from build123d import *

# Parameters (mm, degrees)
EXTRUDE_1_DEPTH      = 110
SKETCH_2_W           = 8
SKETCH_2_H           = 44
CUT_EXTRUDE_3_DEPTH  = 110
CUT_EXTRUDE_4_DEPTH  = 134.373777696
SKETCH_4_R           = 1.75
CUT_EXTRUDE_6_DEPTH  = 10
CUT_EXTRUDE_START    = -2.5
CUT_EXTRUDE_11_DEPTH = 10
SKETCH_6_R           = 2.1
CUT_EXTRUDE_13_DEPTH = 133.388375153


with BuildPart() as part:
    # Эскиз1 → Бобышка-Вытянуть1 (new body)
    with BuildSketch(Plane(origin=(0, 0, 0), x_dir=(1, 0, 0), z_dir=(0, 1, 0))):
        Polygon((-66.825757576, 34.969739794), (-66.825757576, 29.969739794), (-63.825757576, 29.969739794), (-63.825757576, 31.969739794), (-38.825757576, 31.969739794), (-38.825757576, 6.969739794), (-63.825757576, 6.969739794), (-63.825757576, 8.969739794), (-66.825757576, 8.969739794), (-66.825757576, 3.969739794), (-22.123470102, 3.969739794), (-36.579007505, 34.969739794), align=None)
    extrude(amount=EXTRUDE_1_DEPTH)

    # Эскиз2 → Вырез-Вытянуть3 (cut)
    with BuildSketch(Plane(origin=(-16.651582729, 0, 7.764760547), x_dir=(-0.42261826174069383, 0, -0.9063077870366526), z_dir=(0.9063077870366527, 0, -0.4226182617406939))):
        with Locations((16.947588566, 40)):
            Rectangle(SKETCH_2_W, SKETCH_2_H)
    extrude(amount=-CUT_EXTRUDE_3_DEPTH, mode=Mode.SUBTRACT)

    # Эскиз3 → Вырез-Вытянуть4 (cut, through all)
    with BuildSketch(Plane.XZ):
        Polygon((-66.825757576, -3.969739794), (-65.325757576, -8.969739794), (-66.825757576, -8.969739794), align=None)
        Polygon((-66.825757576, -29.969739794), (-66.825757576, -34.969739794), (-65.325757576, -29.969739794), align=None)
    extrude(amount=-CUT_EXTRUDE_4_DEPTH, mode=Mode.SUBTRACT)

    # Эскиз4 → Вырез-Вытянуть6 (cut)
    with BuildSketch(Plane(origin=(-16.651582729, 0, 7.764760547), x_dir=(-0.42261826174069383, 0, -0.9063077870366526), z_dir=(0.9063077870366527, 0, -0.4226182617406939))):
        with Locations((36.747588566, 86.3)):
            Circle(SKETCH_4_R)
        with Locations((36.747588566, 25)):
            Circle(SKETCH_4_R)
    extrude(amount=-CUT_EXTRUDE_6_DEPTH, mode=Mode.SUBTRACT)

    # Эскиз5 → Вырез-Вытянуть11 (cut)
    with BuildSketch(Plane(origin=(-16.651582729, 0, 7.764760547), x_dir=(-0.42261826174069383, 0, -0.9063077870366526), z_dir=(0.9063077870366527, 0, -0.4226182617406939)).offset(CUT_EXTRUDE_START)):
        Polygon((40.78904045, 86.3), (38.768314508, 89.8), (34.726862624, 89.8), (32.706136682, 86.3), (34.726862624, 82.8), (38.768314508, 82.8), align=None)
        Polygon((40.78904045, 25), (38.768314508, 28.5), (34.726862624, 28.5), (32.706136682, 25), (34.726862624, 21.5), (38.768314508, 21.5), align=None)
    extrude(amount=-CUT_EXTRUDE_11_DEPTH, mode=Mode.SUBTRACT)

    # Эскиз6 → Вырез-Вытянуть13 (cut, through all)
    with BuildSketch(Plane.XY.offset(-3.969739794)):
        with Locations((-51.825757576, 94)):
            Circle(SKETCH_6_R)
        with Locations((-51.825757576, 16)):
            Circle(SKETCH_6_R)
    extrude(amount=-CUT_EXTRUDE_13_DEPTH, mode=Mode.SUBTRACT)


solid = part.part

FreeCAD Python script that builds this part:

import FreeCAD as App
import Part
import Sketcher
Q = App.Units.Quantity


def add_polygon(sketch, points):
    """Adds a closed chain of lines whose ends are joined by coincident constraints."""
    first, n = sketch.GeometryCount, len(points)
    for a, b in zip(points, points[1:] + points[:1]):
        sketch.addGeometry(Part.LineSegment(App.Vector(*a, 0), App.Vector(*b, 0)), False)
    for i in range(n):
        sketch.addConstraint(Sketcher.Constraint("Coincident", first + i, 2, first + (i + 1) % n, 1))

doc = App.newDocument("Part")
params = doc.addObject("Spreadsheet::Sheet", "Params")
for row, (alias, value) in enumerate([
    ("sketch1_width", "3 mm"),
    ("sketch1_width2", "25 mm"),
    ("sketch1_height", "5 mm"),
    ("sketch1_height2", "2 mm"),
    ("pad1_length", "110 mm"),
    ("sketch2_width", "8 mm"),
    ("sketch2_height", "44 mm"),
    ("pocket1_length", "110 mm"),
    ("sketch3_height", "5 mm"),
    ("sketch3_width", "1.5 mm"),
    ("sketch4_diameter", "3.5 mm"),
    ("pocket3_length", "10 mm"),
    ("pocket4_length", "10 mm"),
    ("sketch6_diameter", "4.2 mm"),
], start=1):
    params.set(f"A{row}", alias)
    params.set(f"B{row}", "=" + value)
    params.setAlias(f"B{row}", alias)

body = doc.addObject("PartDesign::Body", "Body")

sketch1 = doc.addObject("Sketcher::SketchObject", "Sketch")
body.addObject(sketch1)
sketch1.AttachmentSupport = (doc.XZ_Plane, [""])
sketch1.MapMode = "FlatFace"
add_polygon(sketch1, [(-66.825758, -34.96974), (-66.825758, -29.96974), (-63.825758, -29.96974), (-63.825758, -31.96974), (-38.825758, -31.96974), (-38.825758, -6.96974), (-63.825758, -6.96974), (-63.825758, -8.96974), (-66.825758, -8.96974), (-66.825758, -3.96974), (-22.12347, -3.96974), (-36.579008, -34.96974)])
sketch1.addConstraint([
    Sketcher.Constraint("Vertical", 0),
    Sketcher.Constraint("Horizontal", 1),
    Sketcher.Constraint("Vertical", 2),
    Sketcher.Constraint("Horizontal", 3),
    Sketcher.Constraint("Vertical", 4),
    Sketcher.Constraint("Horizontal", 5),
    Sketcher.Constraint("Vertical", 6),
    Sketcher.Constraint("Horizontal", 7),
    Sketcher.Constraint("Vertical", 8),
    Sketcher.Constraint("Horizontal", 9),
    Sketcher.Constraint("Horizontal", 11),
    Sketcher.Constraint("Vertical", 2, 2, 5, 2),
    Sketcher.Constraint("Vertical", 0, 2, 7, 2),
    Sketcher.Constraint("Equal", 5, 4),
    Sketcher.Constraint("Equal", 2, 6),
    Sketcher.Constraint("Equal", 0, 8),
    Sketcher.Constraint("DistanceX", 1, 1, 1, 2, Q("3 mm")),
    Sketcher.Constraint("DistanceX", 3, 1, 3, 2, Q("25 mm")),
    Sketcher.Constraint("DistanceY", 0, 1, 0, 2, Q("5 mm")),
    Sketcher.Constraint("DistanceY", 2, 2, 2, 1, Q("2 mm")),
    Sketcher.Constraint("Angle", 10, Q("-115 deg")),
    Sketcher.Constraint("DistanceX", 11, 2, 11, 1, Q("30.24675 mm")),
    Sketcher.Constraint("DistanceY", 0, 2, -1, 1, Q("29.96974 mm")),
    Sketcher.Constraint("DistanceX", 9, 2, -1, 1, Q("22.12347 mm")),
])
sketch1.setExpression("Constraints[28]", "Params.sketch1_width")
sketch1.setExpression("Constraints[29]", "Params.sketch1_width2")
sketch1.setExpression("Constraints[30]", "Params.sketch1_height")
sketch1.setExpression("Constraints[31]", "Params.sketch1_height2")
pad1 = doc.addObject("PartDesign::Pad", "Pad")
body.addObject(pad1)
pad1.Profile = sketch1
pad1.setExpression("Length", "Params.pad1_length")
pad1.Reversed = True

sketch2 = doc.addObject("Sketcher::SketchObject", "Sketch001")
body.addObject(sketch2)
sketch2.Placement = App.Placement(App.Vector(-16.651583, 0, 7.764761), App.Rotation(App.Vector(-0.422618262, 0, -0.906307787), App.Vector(0, 1, 0), App.Vector(0.906307787, 0, -0.422618262), "ZXY"))
add_polygon(sketch2, [(12.947589, 62), (12.947589, 18), (20.947589, 18), (20.947589, 62)])
sketch2.addConstraint([
    Sketcher.Constraint("Vertical", 0),
    Sketcher.Constraint("Horizontal", 1),
    Sketcher.Constraint("Vertical", 2),
    Sketcher.Constraint("Horizontal", 3),
    Sketcher.Constraint("DistanceX", 1, 1, 1, 2, Q("8 mm")),
    Sketcher.Constraint("DistanceY", 0, 2, 0, 1, Q("44 mm")),
    Sketcher.Constraint("DistanceY", -1, 1, 0, 2, Q("18 mm")),
    Sketcher.Constraint("DistanceX", -1, 1, 0, 2, Q("12.947589 mm")),
])
sketch2.setExpression("Constraints[8]", "Params.sketch2_width")
sketch2.setExpression("Constraints[9]", "Params.sketch2_height")
pocket1 = doc.addObject("PartDesign::Pocket", "Pocket")
body.addObject(pocket1)
pocket1.Profile = sketch2
pocket1.setExpression("Length", "Params.pocket1_length")

sketch3 = doc.addObject("Sketcher::SketchObject", "Sketch002")
body.addObject(sketch3)
sketch3.AttachmentSupport = (doc.XZ_Plane, [""])
sketch3.MapMode = "FlatFace"
add_polygon(sketch3, [(-65.325758, -8.96974), (-66.825758, -3.96974), (-66.825758, -8.96974)])
add_polygon(sketch3, [(-66.825758, -29.96974), (-66.825758, -34.96974), (-65.325758, -29.96974)])
sketch3.addConstraint([
    Sketcher.Constraint("Vertical", 1),
    Sketcher.Constraint("Horizontal", 2),
    Sketcher.Constraint("Vertical", 3),
    Sketcher.Constraint("Horizontal", 5),
    Sketcher.Constraint("Vertical", 1, 2, 3, 2),
    Sketcher.Constraint("Vertical", 2, 2, 4, 2),
    Sketcher.Constraint("Equal", 1, 3),
    Sketcher.Constraint("DistanceY", 1, 2, 1, 1, Q("5 mm")),
    Sketcher.Constraint("DistanceX", 2, 1, 2, 2, Q("1.5 mm")),
    Sketcher.Constraint("DistanceY", 3, 2, 1, 2, Q("26 mm")),
    Sketcher.Constraint("DistanceY", 0, 2, -1, 1, Q("3.96974 mm")),
    Sketcher.Constraint("DistanceX", 0, 2, -1, 1, Q("66.825758 mm")),
])
sketch3.setExpression("Constraints[13]", "Params.sketch3_height")
sketch3.setExpression("Constraints[14]", "Params.sketch3_width")
pocket2 = doc.addObject("PartDesign::Pocket", "Pocket001")
body.addObject(pocket2)
pocket2.Profile = sketch3
pocket2.Type = "ThroughAll"

sketch4 = doc.addObject("Sketcher::SketchObject", "Sketch003")
body.addObject(sketch4)
sketch4.Placement = App.Placement(App.Vector(-16.651583, 0, 7.764761), App.Rotation(App.Vector(-0.422618262, 0, -0.906307787), App.Vector(0, 1, 0), App.Vector(0.906307787, 0, -0.422618262), "ZXY"))
sketch4.addGeometry([
    Part.Circle(App.Vector(36.747589, 86.3, 0), App.Vector(0, 0, 1), 1.75),
    Part.Circle(App.Vector(36.747589, 25, 0), App.Vector(0, 0, 1), 1.75),
], False)
sketch4.addConstraint([
    Sketcher.Constraint("Equal", 0, 1),
    Sketcher.Constraint("Vertical", 0, 3, 1, 3),
    Sketcher.Constraint("Diameter", 0, Q("3.5 mm")),
    Sketcher.Constraint("DistanceY", -1, 1, 1, 3, Q("25 mm")),
    Sketcher.Constraint("DistanceY", -1, 1, 0, 3, Q("86.3 mm")),
    Sketcher.Constraint("DistanceX", -1, 1, 0, 3, Q("36.747589 mm")),
])
sketch4.setExpression("Constraints[2]", "Params.sketch4_diameter")
pocket3 = doc.addObject("PartDesign::Pocket", "Pocket002")
body.addObject(pocket3)
pocket3.Profile = sketch4
pocket3.setExpression("Length", "Params.pocket3_length")

sketch5 = doc.addObject("Sketcher::SketchObject", "Sketch004")
body.addObject(sketch5)
sketch5.Placement = App.Placement(App.Vector(-18.917352, 0, 8.821306), App.Rotation(App.Vector(-0.422618262, 0, -0.906307787), App.Vector(0, 1, 0), App.Vector(0.906307787, 0, -0.422618262), "ZXY"))
add_polygon(sketch5, [(40.78904, 86.3), (38.768315, 89.8), (34.726863, 89.8), (32.706137, 86.3), (34.726863, 82.8), (38.768315, 82.8)])
add_polygon(sketch5, [(40.78904, 25), (38.768315, 28.5), (34.726863, 28.5), (32.706137, 25), (34.726863, 21.5), (38.768315, 21.5)])
sketch5.addConstraint([
    Sketcher.Constraint("Horizontal", 1),
    Sketcher.Constraint("Horizontal", 4),
    Sketcher.Constraint("Horizontal", 7),
    Sketcher.Constraint("Horizontal", 10),
    Sketcher.Constraint("Parallel", 0, 3),
    Sketcher.Constraint("Parallel", 2, 5),
    Sketcher.Constraint("Parallel", 3, 6),
    Sketcher.Constraint("Parallel", 5, 8),
    Sketcher.Constraint("Parallel", 6, 9),
    Sketcher.Constraint("Parallel", 8, 11),
    Sketcher.Constraint("Horizontal", 2, 2, 5, 2),
    Sketcher.Constraint("Horizontal", 8, 2, 11, 2),
    Sketcher.Constraint("Vertical", 1, 2, 3, 2),
    Sketcher.Constraint("Vertical", 0, 2, 4, 2),
    Sketcher.Constraint("Vertical", 4, 2, 6, 2),
    Sketcher.Constraint("Vertical", 3, 2, 7, 2),
    Sketcher.Constraint("Vertical", 2, 2, 8, 2),
    Sketcher.Constraint("Vertical", 7, 2, 9, 2),
    Sketcher.Constraint("Angle", 0, Q("120 deg")),
    Sketcher.Constraint("DistanceY", -1, 1, 8, 2, Q("25 mm")),
    Sketcher.Constraint("DistanceY", 3, 2, 1, 2, Q("7 mm")),
    Sketcher.Constraint("DistanceY", -1, 1, 0, 2, Q("89.8 mm")),
    Sketcher.Constraint("DistanceX", 1, 2, 1, 1, Q("4.041452 mm")),
    Sketcher.Constraint("DistanceX", -1, 1, 5, 2, Q("40.78904 mm")),
])
pocket4 = doc.addObject("PartDesign::Pocket", "Pocket003")
body.addObject(pocket4)
pocket4.Profile = sketch5
pocket4.setExpression("Length", "Params.pocket4_length")

sketch6 = doc.addObject("Sketcher::SketchObject", "Sketch005")
body.addObject(sketch6)
sketch6.AttachmentSupport = (doc.XY_Plane, [""])
sketch6.MapMode = "FlatFace"
sketch6.AttachmentOffset = App.Placement(App.Vector(0, 0, -3.96974), App.Rotation())
sketch6.addGeometry([
    Part.Circle(App.Vector(-51.825758, 94, 0), App.Vector(0, 0, 1), 2.1),
    Part.Circle(App.Vector(-51.825758, 16, 0), App.Vector(0, 0, 1), 2.1),
], False)
sketch6.addConstraint([
    Sketcher.Constraint("Equal", 0, 1),
    Sketcher.Constraint("Vertical", 0, 3, 1, 3),
    Sketcher.Constraint("Diameter", 0, Q("4.2 mm")),
    Sketcher.Constraint("DistanceY", -1, 1, 0, 3, Q("94 mm")),
    Sketcher.Constraint("DistanceY", -1, 1, 1, 3, Q("16 mm")),
    Sketcher.Constraint("DistanceX", 0, 3, -1, 1, Q("51.825758 mm")),
])
sketch6.setExpression("Constraints[2]", "Params.sketch6_diameter")
pocket5 = doc.addObject("PartDesign::Pocket", "Pocket004")
body.addObject(pocket5)
pocket5.Profile = sketch6
pocket5.Type = "ThroughAll"

doc.recompute()
